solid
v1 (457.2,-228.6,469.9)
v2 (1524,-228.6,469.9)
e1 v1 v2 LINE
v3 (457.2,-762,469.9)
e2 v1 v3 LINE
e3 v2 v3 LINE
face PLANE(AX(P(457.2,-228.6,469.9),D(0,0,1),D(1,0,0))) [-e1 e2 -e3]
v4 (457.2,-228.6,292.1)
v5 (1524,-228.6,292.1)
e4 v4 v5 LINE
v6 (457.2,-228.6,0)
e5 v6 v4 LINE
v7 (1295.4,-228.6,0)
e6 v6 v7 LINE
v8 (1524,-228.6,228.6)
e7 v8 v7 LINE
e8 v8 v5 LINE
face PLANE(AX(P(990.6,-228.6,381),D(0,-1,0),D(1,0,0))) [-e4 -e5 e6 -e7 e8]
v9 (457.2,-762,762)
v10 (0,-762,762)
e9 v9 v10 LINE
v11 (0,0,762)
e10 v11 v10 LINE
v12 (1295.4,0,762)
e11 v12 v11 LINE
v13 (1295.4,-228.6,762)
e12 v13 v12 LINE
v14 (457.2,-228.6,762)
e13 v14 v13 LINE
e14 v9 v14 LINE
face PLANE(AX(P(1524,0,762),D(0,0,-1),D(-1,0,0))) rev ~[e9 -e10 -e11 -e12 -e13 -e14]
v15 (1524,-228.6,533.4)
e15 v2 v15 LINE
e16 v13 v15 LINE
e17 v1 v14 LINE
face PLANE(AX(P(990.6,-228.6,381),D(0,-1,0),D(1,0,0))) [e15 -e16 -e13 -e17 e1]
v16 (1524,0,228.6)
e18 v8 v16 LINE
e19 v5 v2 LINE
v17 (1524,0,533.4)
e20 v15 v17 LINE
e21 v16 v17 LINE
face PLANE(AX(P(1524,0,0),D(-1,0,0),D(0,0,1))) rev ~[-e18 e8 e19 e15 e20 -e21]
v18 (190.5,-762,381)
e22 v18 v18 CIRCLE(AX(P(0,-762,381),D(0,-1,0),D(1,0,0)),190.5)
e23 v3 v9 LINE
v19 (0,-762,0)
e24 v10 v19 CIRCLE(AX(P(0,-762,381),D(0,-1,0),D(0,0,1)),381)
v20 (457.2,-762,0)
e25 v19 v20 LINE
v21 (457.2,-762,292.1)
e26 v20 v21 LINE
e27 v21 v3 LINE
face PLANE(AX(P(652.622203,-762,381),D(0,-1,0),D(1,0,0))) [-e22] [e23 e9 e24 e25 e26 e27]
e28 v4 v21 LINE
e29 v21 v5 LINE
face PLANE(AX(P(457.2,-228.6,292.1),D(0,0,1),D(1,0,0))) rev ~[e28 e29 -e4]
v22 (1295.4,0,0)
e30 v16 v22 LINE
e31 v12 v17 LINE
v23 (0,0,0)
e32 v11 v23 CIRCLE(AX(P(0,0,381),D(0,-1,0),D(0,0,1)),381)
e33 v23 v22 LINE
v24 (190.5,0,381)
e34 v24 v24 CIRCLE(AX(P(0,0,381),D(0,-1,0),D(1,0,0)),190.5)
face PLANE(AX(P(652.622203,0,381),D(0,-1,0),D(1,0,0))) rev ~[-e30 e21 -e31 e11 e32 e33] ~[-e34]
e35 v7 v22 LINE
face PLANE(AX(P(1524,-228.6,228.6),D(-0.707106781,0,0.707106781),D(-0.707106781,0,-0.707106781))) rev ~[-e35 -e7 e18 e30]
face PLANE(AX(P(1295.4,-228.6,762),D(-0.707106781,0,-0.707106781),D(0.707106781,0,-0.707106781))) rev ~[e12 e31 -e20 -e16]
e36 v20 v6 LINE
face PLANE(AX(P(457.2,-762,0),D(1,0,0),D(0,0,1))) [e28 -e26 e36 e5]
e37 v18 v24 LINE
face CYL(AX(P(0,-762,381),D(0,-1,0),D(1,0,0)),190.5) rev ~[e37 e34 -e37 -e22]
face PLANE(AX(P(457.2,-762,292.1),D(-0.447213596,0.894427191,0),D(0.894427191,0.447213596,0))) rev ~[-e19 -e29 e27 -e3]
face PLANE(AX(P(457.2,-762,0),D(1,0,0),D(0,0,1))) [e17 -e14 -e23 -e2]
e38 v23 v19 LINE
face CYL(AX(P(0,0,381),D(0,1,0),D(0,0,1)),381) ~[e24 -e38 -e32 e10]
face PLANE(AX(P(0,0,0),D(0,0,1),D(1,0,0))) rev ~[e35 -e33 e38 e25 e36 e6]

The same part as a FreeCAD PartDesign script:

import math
import FreeCAD as App
import Part
import Sketcher

V = App.Vector
Q = App.Units.Quantity


def add_polygon(sketch, points):
    """Adds a closed chain of lines whose ends are joined by coincident constraints."""
    first, n = sketch.GeometryCount, len(points)
    for a, b in zip(points, points[1:] + points[:1]):
        sketch.addGeometry(Part.LineSegment(App.Vector(*a, 0), App.Vector(*b, 0)), False)
    for i in range(n):
        sketch.addConstraint(Sketcher.Constraint("Coincident", first + i, 2, first + (i + 1) % n, 1))

doc = App.newDocument("Part")
body = doc.addObject("PartDesign::Body", "Body")

# Sketch on XZ plane
sketch1 = doc.addObject("Sketcher::SketchObject", "Sketch")
body.addObject(sketch1)
sketch1.AttachmentSupport = (doc.XZ_Plane, [""])
sketch1.MapMode = "FlatFace"
sketch1.addGeometry(Part.LineSegment(V(1524, 762, 0), V(0, 762, 0)), False)
sketch1.addGeometry(Part.ArcOfCircle(Part.Circle(V(0, 381, 0), V(0, 0, 1), 381), math.radians(90), math.radians(270)), False)
sketch1.addGeometry(Part.LineSegment(V(0, 0, 0), V(1524, 0, 0)), False)
sketch1.addGeometry(Part.LineSegment(V(1524, 0, 0), V(1524, 762, 0)), False)
sketch1.addConstraint(Sketcher.Constraint("Tangent", 0, 2, 1, 1))
sketch1.addConstraint(Sketcher.Constraint("Tangent", 1, 2, 2, 1))
sketch1.addConstraint(Sketcher.Constraint("Coincident", 2, 2, 3, 1))
sketch1.addConstraint(Sketcher.Constraint("Coincident", 3, 2, 0, 1))
sketch1.addConstraint(Sketcher.Constraint("Horizontal", 0))
sketch1.addConstraint(Sketcher.Constraint("Horizontal", 2))
sketch1.addConstraint(Sketcher.Constraint("Vertical", 3))
sketch1.addConstraint(Sketcher.Constraint("PointOnObject", 1, 3, -2))
sketch1.addConstraint(Sketcher.Constraint("PointOnObject", 2, 2, -1))
sketch1.addConstraint(Sketcher.Constraint("Radius", 1, Q("15 in")))
sketch1.addConstraint(Sketcher.Constraint("DistanceX", 0, 2, 0, 1, Q("60 in")))
pad1 = doc.addObject("PartDesign::Pad", "Pad")
body.addObject(pad1)
pad1.Profile = sketch1
pad1.Length = Q("30 in")

# Sketch on XZ plane
sketch2 = doc.addObject("Sketcher::SketchObject", "Sketch001")
body.addObject(sketch2)
sketch2.AttachmentSupport = (doc.XZ_Plane, [""])
sketch2.MapMode = "FlatFace"
sketch2.AttachmentOffset = App.Placement(V(0, 0, 30 * 25.4), App.Rotation())
add_polygon(sketch2, [(457, 762), (457, 0), (1524, 0), (1524, 762)])  # lines 0-3
sketch2.addConstraint(Sketcher.Constraint("Vertical", 0))
sketch2.addConstraint(Sketcher.Constraint("Horizontal", 1))
sketch2.addConstraint(Sketcher.Constraint("Vertical", 2))
sketch2.addConstraint(Sketcher.Constraint("Horizontal", 3))
sketch2.addConstraint(Sketcher.Constraint("PointOnObject", 0, 2, -1))
sketch2.addConstraint(Sketcher.Constraint("DistanceX", 1, 1, 1, 2, Q("42 in")))
sketch2.addConstraint(Sketcher.Constraint("DistanceY", 0, 2, 0, 1, Q("30 in")))
sketch2.addConstraint(Sketcher.Constraint("DistanceX", -1, 1, 0, 2, Q("18 in")))
pocket1 = doc.addObject("PartDesign::Pocket", "Pocket")
body.addObject(pocket1)
pocket1.Profile = sketch2
pocket1.Length = Q("21 in")

# Sketch on XZ plane
sketch3 = doc.addObject("Sketcher::SketchObject", "Sketch002")
body.addObject(sketch3)
sketch3.AttachmentSupport = (doc.XZ_Plane, [""])
sketch3.MapMode = "FlatFace"
sketch3.AttachmentOffset = App.Placement(V(0, 0, 9 * 25.4), App.Rotation())
add_polygon(sketch3, [(1295, 0), (1524, 0), (1524, 229)])  # lines 0-2
add_polygon(sketch3, [(1295, 762), (1524, 533), (1524, 762)])  # lines 3-5
sketch3.addConstraint(Sketcher.Constraint("Horizontal", 0))
sketch3.addConstraint(Sketcher.Constraint("Vertical", 1))
sketch3.addConstraint(Sketcher.Constraint("Vertical", 4))
sketch3.addConstraint(Sketcher.Constraint("Horizontal", 5))
sketch3.addConstraint(Sketcher.Constraint("PointOnObject", 0, 2, -1))
sketch3.addConstraint(Sketcher.Constraint("Perpendicular", 2, 3))
sketch3.addConstraint(Sketcher.Constraint("Vertical", 1, 2, 3, 2))
sketch3.addConstraint(Sketcher.Constraint("Vertical", 2, 2, 5, 2))
sketch3.addConstraint(Sketcher.Constraint("Equal", 5, 1))
sketch3.addConstraint(Sketcher.Constraint("DistanceX", 0, 1, 0, 2, Q("9 in")))
sketch3.addConstraint(Sketcher.Constraint("DistanceX", -1, 1, 0, 2, Q("60 in")))
sketch3.addConstraint(Sketcher.Constraint("DistanceY", -1, 1, 3, 2, Q("21 in")))
pocket2 = doc.addObject("PartDesign::Pocket", "Pocket001")
body.addObject(pocket2)
pocket2.Profile = sketch3
pocket2.Length = Q("9 in")

# Sketch on XZ plane
sketch4 = doc.addObject("Sketcher::SketchObject", "Sketch003")
body.addObject(sketch4)
sketch4.AttachmentSupport = (doc.XZ_Plane, [""])
sketch4.MapMode = "FlatFace"
sketch4.AttachmentOffset = App.Placement(V(0, 0, 9 * 25.4), App.Rotation())
add_polygon(sketch4, [(457, 470), (457, 292), (1524, 292), (1524, 470)])  # lines 0-3
sketch4.addConstraint(Sketcher.Constraint("Vertical", 0))
sketch4.addConstraint(Sketcher.Constraint("Horizontal", 1))
sketch4.addConstraint(Sketcher.Constraint("Vertical", 2))
sketch4.addConstraint(Sketcher.Constraint("Horizontal", 3))
sketch4.addConstraint(Sketcher.Constraint("DistanceX", 1, 1, 1, 2, Q("42 in")))
sketch4.addConstraint(Sketcher.Constraint("DistanceY", 0, 2, 0, 1, Q("7 in")))
sketch4.addConstraint(Sketcher.Constraint("DistanceX", -1, 1, 0, 2, Q("18 in")))
sketch4.addConstraint(Sketcher.Constraint("DistanceY", -1, 1, 0, 2, Q("11.5 in")))
pad2 = doc.addObject("PartDesign::Pad", "Pad001")
body.addObject(pad2)
pad2.Profile = sketch4
pad2.Length = Q("21 in")

# Sketch on XY plane
sketch5 = doc.addObject("Sketcher::SketchObject", "Sketch004")
body.addObject(sketch5)
sketch5.AttachmentSupport = (doc.XY_Plane, [""])
sketch5.MapMode = "FlatFace"
sketch5.AttachmentOffset = App.Placement(V(0, 0, 11.5 * 25.4), App.Rotation())
add_polygon(sketch5, [(1524, -762), (457, -762), (1524, -229)])  # lines 0-2
sketch5.addConstraint(Sketcher.Constraint("Horizontal", 0))
sketch5.addConstraint(Sketcher.Constraint("Vertical", 2))
sketch5.addConstraint(Sketcher.Constraint("DistanceX", 0, 2, 0, 1, Q("42 in")))
sketch5.addConstraint(Sketcher.Constraint("DistanceY", 2, 2, 2, 1, Q("21 in")))
sketch5.addConstraint(Sketcher.Constraint("DistanceX", -1, 1, 0, 2, Q("18 in")))
sketch5.addConstraint(Sketcher.Constraint("DistanceY", 0, 2, -1, 1, Q("30 in")))
pocket3 = doc.addObject("PartDesign::Pocket", "Pocket002")
body.addObject(pocket3)
pocket3.Profile = sketch5
pocket3.Length = Q("10 in")
pocket3.Reversed = True

# Sketch on XZ plane
sketch6 = doc.addObject("Sketcher::SketchObject", "Sketch005")
body.addObject(sketch6)
sketch6.AttachmentSupport = (doc.XZ_Plane, [""])
sketch6.MapMode = "FlatFace"
sketch6.AttachmentOffset = App.Placement(V(0, 0, 30 * 25.4), App.Rotation())
sketch6.addGeometry(Part.Circle(V(0, 381, 0), V(0, 0, 1), 190), False)
sketch6.addConstraint(Sketcher.Constraint("PointOnObject", 0, 3, -2))
sketch6.addConstraint(Sketcher.Constraint("Diameter", 0, Q("15 in")))
sketch6.addConstraint(Sketcher.Constraint("DistanceY", -1, 1, 0, 3, Q("15 in")))
pocket4 = doc.addObject("PartDesign::Pocket", "Pocket003")
body.addObject(pocket4)
pocket4.Profile = sketch6
pocket4.Length = Q("30 in")

doc.recompute()
